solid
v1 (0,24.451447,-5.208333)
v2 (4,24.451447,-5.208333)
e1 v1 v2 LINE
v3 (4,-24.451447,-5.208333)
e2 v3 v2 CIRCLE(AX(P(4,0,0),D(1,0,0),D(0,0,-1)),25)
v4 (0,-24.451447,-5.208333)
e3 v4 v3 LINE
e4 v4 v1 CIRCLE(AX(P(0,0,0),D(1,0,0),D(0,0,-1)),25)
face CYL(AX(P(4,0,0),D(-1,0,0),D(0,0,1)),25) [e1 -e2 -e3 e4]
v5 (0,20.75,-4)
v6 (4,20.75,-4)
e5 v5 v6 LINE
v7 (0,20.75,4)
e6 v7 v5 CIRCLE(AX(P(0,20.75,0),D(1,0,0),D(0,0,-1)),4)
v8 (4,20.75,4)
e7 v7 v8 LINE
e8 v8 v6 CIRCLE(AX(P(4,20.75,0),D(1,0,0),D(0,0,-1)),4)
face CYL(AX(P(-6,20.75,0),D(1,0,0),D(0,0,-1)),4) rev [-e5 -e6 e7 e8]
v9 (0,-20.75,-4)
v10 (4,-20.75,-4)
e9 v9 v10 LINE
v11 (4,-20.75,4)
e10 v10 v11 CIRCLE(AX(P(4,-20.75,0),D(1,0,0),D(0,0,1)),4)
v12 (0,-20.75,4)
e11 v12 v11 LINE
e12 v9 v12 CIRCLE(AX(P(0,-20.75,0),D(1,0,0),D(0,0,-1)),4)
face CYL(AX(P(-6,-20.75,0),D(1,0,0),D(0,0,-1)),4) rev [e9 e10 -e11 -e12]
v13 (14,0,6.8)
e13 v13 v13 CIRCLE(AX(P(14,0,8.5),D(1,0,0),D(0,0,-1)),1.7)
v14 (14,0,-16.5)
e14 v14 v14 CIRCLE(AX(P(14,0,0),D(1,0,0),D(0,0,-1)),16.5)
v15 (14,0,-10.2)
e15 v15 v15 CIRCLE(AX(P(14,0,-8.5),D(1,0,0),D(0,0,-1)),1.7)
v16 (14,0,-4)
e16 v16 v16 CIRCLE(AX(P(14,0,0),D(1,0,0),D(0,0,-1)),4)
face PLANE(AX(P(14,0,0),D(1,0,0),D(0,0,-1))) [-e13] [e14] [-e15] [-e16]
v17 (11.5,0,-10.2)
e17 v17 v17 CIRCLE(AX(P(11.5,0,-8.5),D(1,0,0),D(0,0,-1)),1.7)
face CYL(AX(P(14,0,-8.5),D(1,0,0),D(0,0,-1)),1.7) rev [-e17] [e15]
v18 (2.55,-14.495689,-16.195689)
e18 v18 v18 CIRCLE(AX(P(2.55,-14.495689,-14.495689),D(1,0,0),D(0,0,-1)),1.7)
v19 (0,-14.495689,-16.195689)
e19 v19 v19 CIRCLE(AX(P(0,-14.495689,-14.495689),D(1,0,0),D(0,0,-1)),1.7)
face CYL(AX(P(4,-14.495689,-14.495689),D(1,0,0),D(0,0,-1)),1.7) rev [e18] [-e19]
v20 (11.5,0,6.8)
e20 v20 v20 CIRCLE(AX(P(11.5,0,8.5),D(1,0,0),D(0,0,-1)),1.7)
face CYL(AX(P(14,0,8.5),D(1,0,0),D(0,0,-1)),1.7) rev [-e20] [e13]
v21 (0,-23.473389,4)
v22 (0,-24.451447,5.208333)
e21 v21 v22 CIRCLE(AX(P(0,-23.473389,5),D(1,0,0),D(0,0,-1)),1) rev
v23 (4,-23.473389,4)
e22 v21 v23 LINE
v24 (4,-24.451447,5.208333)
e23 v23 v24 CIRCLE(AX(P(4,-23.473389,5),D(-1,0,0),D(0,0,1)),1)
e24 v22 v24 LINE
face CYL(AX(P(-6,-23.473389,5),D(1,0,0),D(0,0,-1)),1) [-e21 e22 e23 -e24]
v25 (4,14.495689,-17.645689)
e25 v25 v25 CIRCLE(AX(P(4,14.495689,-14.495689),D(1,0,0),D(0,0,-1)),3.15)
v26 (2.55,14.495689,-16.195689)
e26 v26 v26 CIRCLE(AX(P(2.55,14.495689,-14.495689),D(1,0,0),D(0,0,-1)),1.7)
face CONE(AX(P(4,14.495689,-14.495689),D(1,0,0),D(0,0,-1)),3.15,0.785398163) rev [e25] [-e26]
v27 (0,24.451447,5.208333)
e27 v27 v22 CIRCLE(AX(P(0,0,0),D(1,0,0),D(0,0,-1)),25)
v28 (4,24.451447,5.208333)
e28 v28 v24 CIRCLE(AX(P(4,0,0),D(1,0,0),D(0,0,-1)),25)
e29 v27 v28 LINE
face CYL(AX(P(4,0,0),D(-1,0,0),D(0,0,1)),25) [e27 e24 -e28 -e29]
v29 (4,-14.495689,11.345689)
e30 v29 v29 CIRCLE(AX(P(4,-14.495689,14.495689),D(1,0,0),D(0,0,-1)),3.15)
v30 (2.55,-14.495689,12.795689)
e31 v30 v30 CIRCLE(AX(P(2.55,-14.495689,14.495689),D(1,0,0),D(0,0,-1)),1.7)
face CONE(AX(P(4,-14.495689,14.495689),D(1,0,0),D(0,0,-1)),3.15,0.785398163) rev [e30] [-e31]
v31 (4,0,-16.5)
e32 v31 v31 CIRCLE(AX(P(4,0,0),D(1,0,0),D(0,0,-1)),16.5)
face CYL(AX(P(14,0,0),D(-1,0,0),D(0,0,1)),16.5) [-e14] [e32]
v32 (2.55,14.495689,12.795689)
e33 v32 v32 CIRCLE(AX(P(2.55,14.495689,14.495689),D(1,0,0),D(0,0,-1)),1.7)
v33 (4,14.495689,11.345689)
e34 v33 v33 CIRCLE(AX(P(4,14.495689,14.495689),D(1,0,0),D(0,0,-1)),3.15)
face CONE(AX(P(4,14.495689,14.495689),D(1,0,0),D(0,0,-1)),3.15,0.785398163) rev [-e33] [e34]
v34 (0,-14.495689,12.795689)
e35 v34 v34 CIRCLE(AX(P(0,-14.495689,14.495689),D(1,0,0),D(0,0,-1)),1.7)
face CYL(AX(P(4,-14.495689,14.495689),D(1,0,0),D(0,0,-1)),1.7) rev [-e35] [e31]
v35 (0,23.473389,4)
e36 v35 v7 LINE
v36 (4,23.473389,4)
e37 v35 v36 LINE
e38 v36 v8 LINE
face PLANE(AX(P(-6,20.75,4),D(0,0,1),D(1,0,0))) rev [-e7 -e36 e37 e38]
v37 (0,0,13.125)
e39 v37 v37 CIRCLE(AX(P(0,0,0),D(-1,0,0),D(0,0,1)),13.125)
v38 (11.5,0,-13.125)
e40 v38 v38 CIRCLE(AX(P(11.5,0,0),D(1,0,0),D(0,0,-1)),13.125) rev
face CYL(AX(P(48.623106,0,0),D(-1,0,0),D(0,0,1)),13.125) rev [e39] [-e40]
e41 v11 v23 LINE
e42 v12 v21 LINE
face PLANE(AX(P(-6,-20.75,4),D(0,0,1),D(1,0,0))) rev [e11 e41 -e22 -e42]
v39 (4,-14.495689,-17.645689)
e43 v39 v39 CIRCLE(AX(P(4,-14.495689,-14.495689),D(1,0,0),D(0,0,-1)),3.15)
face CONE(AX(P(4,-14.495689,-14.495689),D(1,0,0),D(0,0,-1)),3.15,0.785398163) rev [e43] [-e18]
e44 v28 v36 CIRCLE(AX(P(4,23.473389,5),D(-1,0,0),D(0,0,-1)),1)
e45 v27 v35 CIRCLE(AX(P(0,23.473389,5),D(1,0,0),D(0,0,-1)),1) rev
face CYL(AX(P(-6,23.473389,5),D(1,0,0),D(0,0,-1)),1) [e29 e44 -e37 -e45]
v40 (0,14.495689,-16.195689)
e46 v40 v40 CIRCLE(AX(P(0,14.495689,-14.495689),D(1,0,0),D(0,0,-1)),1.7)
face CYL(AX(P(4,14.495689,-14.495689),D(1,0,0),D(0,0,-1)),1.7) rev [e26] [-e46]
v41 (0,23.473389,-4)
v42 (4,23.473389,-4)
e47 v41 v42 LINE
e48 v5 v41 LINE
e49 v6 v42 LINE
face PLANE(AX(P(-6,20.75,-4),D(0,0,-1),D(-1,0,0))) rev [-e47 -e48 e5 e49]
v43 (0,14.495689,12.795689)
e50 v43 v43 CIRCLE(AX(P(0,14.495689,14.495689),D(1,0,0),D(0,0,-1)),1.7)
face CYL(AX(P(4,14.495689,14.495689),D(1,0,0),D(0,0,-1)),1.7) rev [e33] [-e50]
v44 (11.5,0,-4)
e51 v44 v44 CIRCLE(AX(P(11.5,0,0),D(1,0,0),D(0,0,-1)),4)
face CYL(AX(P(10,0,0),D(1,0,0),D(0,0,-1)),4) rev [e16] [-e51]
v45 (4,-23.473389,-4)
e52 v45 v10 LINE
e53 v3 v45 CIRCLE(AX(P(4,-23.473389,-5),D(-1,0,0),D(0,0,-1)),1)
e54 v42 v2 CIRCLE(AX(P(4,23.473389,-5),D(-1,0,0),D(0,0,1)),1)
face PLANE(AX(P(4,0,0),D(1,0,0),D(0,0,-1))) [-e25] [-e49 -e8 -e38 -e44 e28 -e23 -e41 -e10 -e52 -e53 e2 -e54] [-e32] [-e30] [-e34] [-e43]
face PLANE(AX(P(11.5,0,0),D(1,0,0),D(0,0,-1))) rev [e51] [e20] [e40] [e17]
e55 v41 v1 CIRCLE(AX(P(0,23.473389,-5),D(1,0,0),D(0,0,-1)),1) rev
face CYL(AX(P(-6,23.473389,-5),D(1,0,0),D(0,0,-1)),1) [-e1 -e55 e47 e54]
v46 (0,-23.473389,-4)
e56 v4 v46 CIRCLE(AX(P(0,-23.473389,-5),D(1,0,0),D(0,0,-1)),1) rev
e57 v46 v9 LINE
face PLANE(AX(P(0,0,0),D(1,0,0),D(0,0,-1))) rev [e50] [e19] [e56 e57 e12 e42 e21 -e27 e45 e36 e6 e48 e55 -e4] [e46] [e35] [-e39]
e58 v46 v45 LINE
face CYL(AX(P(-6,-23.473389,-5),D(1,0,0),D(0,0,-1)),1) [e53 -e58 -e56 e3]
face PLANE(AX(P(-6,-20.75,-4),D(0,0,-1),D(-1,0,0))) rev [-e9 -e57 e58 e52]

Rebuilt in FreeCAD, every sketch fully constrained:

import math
import FreeCAD as App
import Part
import Sketcher
from FreeCAD import Vector

doc = App.newDocument("Part")
body = doc.addObject("PartDesign::Body", "Body")

sketch1 = body.newObject("Sketcher::SketchObject", "Sketch")
sketch1.AttachmentSupport = (doc.getObject("YZ_Plane"), [""])
sketch1.MapMode = "FlatFace"
sketch1.addGeometry(Part.Circle(Vector(0, 0, 0), Vector(0, 0, 1), 25), False)
sketch1.addConstraint([
    Sketcher.Constraint("Coincident", 0, 3, -1, 1),
    Sketcher.Constraint("Diameter", 0, 50.0),
])
pad1 = body.newObject("PartDesign::Pad", "Pad")
pad1.Profile = sketch1
pad1.Length = 4

sketch2 = body.newObject("Sketcher::SketchObject", "Sketch001")
sketch2.AttachmentSupport = (doc.getObject("YZ_Plane"), [""])
sketch2.MapMode = "FlatFace"
sketch2.AttachmentOffset = App.Placement(Vector(0, 0, 4), App.Rotation())
sketch2.addGeometry(Part.Circle(Vector(0, 0, 0), Vector(0, 0, 1), 16), False)
sketch2.addConstraint([
    Sketcher.Constraint("Coincident", 0, 3, -1, 1),
    Sketcher.Constraint("Diameter", 0, 33.0),
])
pad2 = body.newObject("PartDesign::Pad", "Pad001")
pad2.Profile = sketch2
pad2.Length = 10

sketch3 = body.newObject("Sketcher::SketchObject", "Sketch002")
sketch3.AttachmentSupport = (doc.getObject("YZ_Plane"), [""])
sketch3.MapMode = "FlatFace"
sketch3.addGeometry(Part.Circle(Vector(0, 0, 0), Vector(0, 0, 1), 12), False)
sketch3.addConstraint([
    Sketcher.Constraint("Coincident", 0, 3, -1, 1),
    Sketcher.Constraint("Diameter", 0, 25.0),
])
pocket1 = body.newObject("PartDesign::Pocket", "Pocket")
pocket1.Profile = sketch3
pocket1.Length = 11.5
pocket1.Reversed = True

sketch4 = body.newObject("Sketcher::SketchObject", "Sketch003")
sketch4.AttachmentSupport = (doc.getObject("YZ_Plane"), [""])
sketch4.MapMode = "FlatFace"
sketch4.AttachmentOffset = App.Placement(Vector(0, 0, 14), App.Rotation())
sketch4.addGeometry(Part.Circle(Vector(0, 0, 0), Vector(0, 0, 1), 4), False)
sketch4.addConstraint([
    Sketcher.Constraint("Coincident", 0, 3, -1, 1),
    Sketcher.Constraint("Diameter", 0, 8.0),
])
pocket2 = body.newObject("PartDesign::Pocket", "Pocket001")
pocket2.Profile = sketch4
pocket2.Length = 4

sketch5 = body.newObject("Sketcher::SketchObject", "Sketch004")
sketch5.AttachmentSupport = (doc.getObject("YZ_Plane"), [""])
sketch5.MapMode = "FlatFace"
sketch5.AttachmentOffset = App.Placement(Vector(0, 0, 14), App.Rotation())
sketch5.addGeometry([
    Part.Circle(Vector(0, -8.5, 0), Vector(0, 0, 1), 1.7),
    Part.Circle(Vector(0, 8.5, 0), Vector(0, 0, 1), 1.7),
], False)
sketch5.addConstraint([
    Sketcher.Constraint("Equal", 0, 1),
    Sketcher.Constraint("Symmetric", 0, 3, 1, 3, -1, 1),
    Sketcher.Constraint("PointOnObject", 0, 3, -2),
    Sketcher.Constraint("Diameter", 0, 3.4),
    Sketcher.Constraint("DistanceY", 0, 3, 1, 3, 17.0),
])
doc.recompute()
hole = body.newObject("PartDesign::Hole", "Hole")
hole.Profile = sketch5
hole.ThreadType = "None"
hole.Diameter = 3.4
hole.DepthType = "Dimension"
hole.Depth = 10
hole.DrillPoint = "Flat"

sketch6 = body.newObject("Sketcher::SketchObject", "Sketch005")
sketch6.AttachmentSupport = (doc.getObject("YZ_Plane"), [""])
sketch6.MapMode = "FlatFace"
sketch6.AttachmentOffset = App.Placement(Vector(0, 0, 4), App.Rotation())
sketch6.addGeometry(Part.Circle(Vector(-14.5, 14.5, 0), Vector(0, 0, 1), 1.7), False)
sketch6.addConstraint([
    Sketcher.Constraint("Diameter", 0, 3.4),
    Sketcher.Constraint("DistanceX", 0, 3, -1, 1, 14.495689),
    Sketcher.Constraint("DistanceY", -1, 1, 0, 3, 14.495689),
])
doc.recompute()
hole2 = body.newObject("PartDesign::Hole", "Hole001")
hole2.Profile = sketch6
hole2.ThreadType = "None"
hole2.Diameter = 3.4
hole2.DepthType = "ThroughAll"
hole2.HoleCutType = "Countersink"
hole2.HoleCutDiameter = 6.3
hole2.HoleCutCountersinkAngle = 90
doc.recompute()

polarpattern = body.newObject("PartDesign::PolarPattern", "PolarPattern")
polarpattern.Originals = [hole2]
polarpattern.Axis = (doc.getObject("X_Axis"), [""])
polarpattern.Angle = 360
polarpattern.Occurrences = 4
body.Tip = polarpattern

sketch7 = body.newObject("Sketcher::SketchObject", "Sketch006")
sketch7.AttachmentSupport = (doc.getObject("YZ_Plane"), [""])
sketch7.MapMode = "FlatFace"
sketch7.addGeometry(Part.Circle(Vector(0, 0, 0), Vector(0, 0, 1), 13), False)
sketch7.addConstraint([
    Sketcher.Constraint("Coincident", 0, 3, -1, 1),
    Sketcher.Constraint("Diameter", 0, 26.25),
])
pocket3 = body.newObject("PartDesign::Pocket", "Pocket002")
pocket3.Profile = sketch7
pocket3.Length = 11.5
pocket3.Reversed = True

sketch8 = body.newObject("Sketcher::SketchObject", "Sketch007")
sketch8.AttachmentSupport = (doc.getObject("YZ_Plane"), [""])
sketch8.MapMode = "FlatFace"
sketch8.AttachmentOffset = App.Placement(Vector(0, 0, 4), App.Rotation())
sketch8.addGeometry([
    Part.LineSegment(Vector(23.5, 4, 0), Vector(20.8, 4, 0)),
    Part.ArcOfCircle(Part.Circle(Vector(20.8, 0, 0), Vector(0, 0, 1), 4), math.radians(90), math.radians(270)),
    Part.LineSegment(Vector(20.8, -4, 0), Vector(23.5, -4, 0)),
    Part.ArcOfCircle(Part.Circle(Vector(23.5, -5, 0), Vector(0, 0, 1), 1), math.radians(-12), math.radians(90)),
    Part.ArcOfCircle(Part.Circle(Vector(0, 0, 0), Vector(0, 0, 1), 25), math.radians(-12), math.radians(12)),
    Part.ArcOfCircle(Part.Circle(Vector(23.5, 5, 0), Vector(0, 0, 1), 1), math.radians(-90), math.radians(12)),
    Part.LineSegment(Vector(-23.5, -4, 0), Vector(-20.8, -4, 0)),
    Part.ArcOfCircle(Part.Circle(Vector(-20.8, 0, 0), Vector(0, 0, 1), 4), math.radians(-90), math.radians(90)),
    Part.LineSegment(Vector(-20.8, 4, 0), Vector(-23.5, 4, 0)),
    Part.ArcOfCircle(Part.Circle(Vector(-23.5, 5, 0), Vector(0, 0, 1), 1), math.radians(168), math.radians(270)),
    Part.ArcOfCircle(Part.Circle(Vector(0, 0, 0), Vector(0, 0, 1), 25), math.radians(168), math.radians(192)),
    Part.ArcOfCircle(Part.Circle(Vector(-23.5, -5, 0), Vector(0, 0, 1), 1), math.radians(90), math.radians(192)),
], False)
sketch8.addConstraint([
    Sketcher.Constraint("Tangent", 0, 2, 1, 1),
    Sketcher.Constraint("Tangent", 1, 2, 2, 1),
    Sketcher.Constraint("Tangent", 2, 2, 3, 2),
    Sketcher.Constraint("Tangent", 3, 1, 4, 1),
    Sketcher.Constraint("Tangent", 4, 2, 5, 2),
    Sketcher.Constraint("Tangent", 5, 1, 0, 1),
    Sketcher.Constraint("Tangent", 6, 2, 7, 1),
    Sketcher.Constraint("Tangent", 7, 2, 8, 1),
    Sketcher.Constraint("Tangent", 8, 2, 9, 2),
    Sketcher.Constraint("Tangent", 9, 1, 10, 1),
    Sketcher.Constraint("Tangent", 10, 2, 11, 2),
    Sketcher.Constraint("Tangent", 11, 1, 6, 1),
    Sketcher.Constraint("Horizontal", 0),
    Sketcher.Constraint("Horizontal", 2),
    Sketcher.Constraint("Horizontal", 6),
    Sketcher.Constraint("Horizontal", 8),
    Sketcher.Constraint("Coincident", 4, 3, -1, 1),
    Sketcher.Constraint("Coincident", 10, 3, -1, 1),
    Sketcher.Constraint("Equal", 3, 5),
    Sketcher.Constraint("Equal", 1, 7),
    Sketcher.Constraint("Equal", 5, 9),
    Sketcher.Constraint("Equal", 4, 10),
    Sketcher.Constraint("Equal", 9, 11),
    Sketcher.Constraint("Symmetric", 1, 3, 7, 3, -1, 1),
    Sketcher.Constraint("PointOnObject", 1, 3, -1),
    Sketcher.Constraint("Radius", 1, 4.0),
    Sketcher.Constraint("Radius", 3, 1.0),
    Sketcher.Constraint("Radius", 4, 25.0),
    Sketcher.Constraint("DistanceX", 7, 3, 1, 3, 41.5),
])
pocket4 = body.newObject("PartDesign::Pocket", "Pocket003")
pocket4.Profile = sketch8
pocket4.Length = 10

doc.recompute()
